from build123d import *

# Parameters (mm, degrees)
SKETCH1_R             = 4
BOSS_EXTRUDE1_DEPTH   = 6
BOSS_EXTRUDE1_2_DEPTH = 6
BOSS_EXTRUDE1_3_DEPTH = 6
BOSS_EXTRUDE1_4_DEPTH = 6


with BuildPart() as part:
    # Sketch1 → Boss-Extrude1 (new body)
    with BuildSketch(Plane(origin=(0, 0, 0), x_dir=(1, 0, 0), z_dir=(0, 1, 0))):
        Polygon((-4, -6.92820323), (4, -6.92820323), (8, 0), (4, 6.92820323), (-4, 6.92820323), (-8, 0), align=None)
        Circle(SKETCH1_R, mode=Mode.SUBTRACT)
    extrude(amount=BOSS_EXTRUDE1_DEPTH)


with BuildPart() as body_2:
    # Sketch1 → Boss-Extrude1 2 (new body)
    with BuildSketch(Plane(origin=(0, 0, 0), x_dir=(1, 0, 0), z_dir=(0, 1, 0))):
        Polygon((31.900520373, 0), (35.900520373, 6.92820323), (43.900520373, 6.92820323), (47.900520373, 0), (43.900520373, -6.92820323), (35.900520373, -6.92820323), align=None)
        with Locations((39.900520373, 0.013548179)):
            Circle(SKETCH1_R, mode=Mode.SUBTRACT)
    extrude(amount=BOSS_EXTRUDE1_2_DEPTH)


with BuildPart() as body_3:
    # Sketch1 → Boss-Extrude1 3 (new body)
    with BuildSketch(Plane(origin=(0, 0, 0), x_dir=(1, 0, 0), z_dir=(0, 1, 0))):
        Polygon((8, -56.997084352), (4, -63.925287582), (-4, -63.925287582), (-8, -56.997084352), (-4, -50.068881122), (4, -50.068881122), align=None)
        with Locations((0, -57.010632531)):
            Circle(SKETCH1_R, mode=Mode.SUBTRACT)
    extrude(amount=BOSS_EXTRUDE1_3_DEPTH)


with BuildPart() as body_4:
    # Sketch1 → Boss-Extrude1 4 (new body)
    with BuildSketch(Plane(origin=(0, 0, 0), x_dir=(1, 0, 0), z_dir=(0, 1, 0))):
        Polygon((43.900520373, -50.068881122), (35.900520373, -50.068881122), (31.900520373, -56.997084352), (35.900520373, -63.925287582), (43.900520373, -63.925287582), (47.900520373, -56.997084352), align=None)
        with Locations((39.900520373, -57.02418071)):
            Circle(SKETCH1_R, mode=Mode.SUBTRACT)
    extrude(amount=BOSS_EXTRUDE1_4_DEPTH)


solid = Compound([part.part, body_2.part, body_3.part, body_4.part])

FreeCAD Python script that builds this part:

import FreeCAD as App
import Part
import Sketcher
from FreeCAD import Vector
Q = App.Units.Quantity

doc = App.newDocument("Part")
params = doc.addObject("Spreadsheet::Sheet", "Params")
for row, (alias, value) in enumerate([
    ("sketch1_diameter", "8 mm"),
    ("sketch1_width", "8 mm"),
    ("sketch1_length", "8 mm"),
    ("pad1_length", "6 mm"),
    ("sketch2_diameter", "8 mm"),
    ("sketch2_width", "8 mm"),
    ("sketch2_length", "8 mm"),
    ("pad2_length", "6 mm"),
    ("sketch3_diameter", "8 mm"),
    ("sketch3_width", "8 mm"),
    ("sketch3_length", "8 mm"),
    ("pad3_length", "6 mm"),
    ("sketch4_diameter", "8 mm"),
    ("sketch4_width", "8 mm"),
    ("sketch4_length", "8 mm"),
    ("pad4_length", "6 mm"),
], start=1):
    params.set(f"A{row}", alias)
    params.set(f"B{row}", "=" + value)
    params.setAlias(f"B{row}", alias)

body = doc.addObject("PartDesign::Body", "Body")

# Sketch on XZ plane
sketch1 = body.newObject("Sketcher::SketchObject", "Sketch")
sketch1.AttachmentSupport = (doc.getObject("XZ_Plane"), [""])
sketch1.MapMode = "FlatFace"
sketch1.addGeometry([
    Part.LineSegment(Vector(-4, 6.9, 0), Vector(4, 6.9, 0)),  # 0
    Part.LineSegment(Vector(4, 6.9, 0), Vector(8, 0, 0)),  # 1
    Part.LineSegment(Vector(8, 0, 0), Vector(4, -6.9, 0)),  # 2
    Part.LineSegment(Vector(4, -6.9, 0), Vector(-4, -6.9, 0)),  # 3
    Part.LineSegment(Vector(-4, -6.9, 0), Vector(-8, 0, 0)),  # 4
    Part.LineSegment(Vector(-8, 0, 0), Vector(-4, 6.9, 0)),  # 5
    Part.Circle(Vector(0, 0, 0), Vector(0, 0, 1), 4),  # 6
], False)
sketch1.addConstraint([
    Sketcher.Constraint("Coincident", 0, 2, 1, 1),
    Sketcher.Constraint("Coincident", 1, 2, 2, 1),
    Sketcher.Constraint("Coincident", 2, 2, 3, 1),
    Sketcher.Constraint("Coincident", 3, 2, 4, 1),
    Sketcher.Constraint("Coincident", 4, 2, 5, 1),
    Sketcher.Constraint("Coincident", 5, 2, 0, 1),
    Sketcher.Constraint("Horizontal", 0),
    Sketcher.Constraint("Horizontal", 3),
    Sketcher.Constraint("Coincident", 6, 3, -1, 1),
    Sketcher.Constraint("Symmetric", 0, 2, 3, 2, -1, 1),
    Sketcher.Constraint("Symmetric", 1, 2, 4, 2, -1, 1),
    Sketcher.Constraint("PointOnObject", 1, 2, -1),
    Sketcher.Constraint("Parallel", 2, 5),
    Sketcher.Constraint("Vertical", 0, 2, 2, 2),
    Sketcher.Constraint("Diameter", 6, 8.0),
    Sketcher.Constraint("DistanceX", 0, 1, 0, 2, 8.0),
    Sketcher.Constraint("Angle", 1, Q("-60 deg")),
    Sketcher.Constraint("Distance", 1, 8.0),
])
sketch1.setExpression("Constraints[14]", "Params.sketch1_diameter")
sketch1.setExpression("Constraints[15]", "Params.sketch1_width")
sketch1.setExpression("Constraints[17]", "Params.sketch1_length")
pad1 = body.newObject("PartDesign::Pad", "Pad")
pad1.Profile = sketch1
pad1.setExpression("Length", "Params.pad1_length")
pad1.Reversed = True
body2 = doc.addObject("PartDesign::Body", "Body001")

# Sketch on XZ plane
sketch2 = body2.newObject("Sketcher::SketchObject", "Sketch001")
sketch2.AttachmentSupport = (doc.getObject("XZ_Plane001"), [""])
sketch2.MapMode = "FlatFace"
sketch2.addGeometry([
    Part.LineSegment(Vector(35.9, -6.9, 0), Vector(31.9, 0, 0)),  # 0
    Part.LineSegment(Vector(31.9, 0, 0), Vector(35.9, 6.9, 0)),  # 1
    Part.LineSegment(Vector(35.9, 6.9, 0), Vector(43.9, 6.9, 0)),  # 2
    Part.LineSegment(Vector(43.9, 6.9, 0), Vector(47.9, 0, 0)),  # 3
    Part.LineSegment(Vector(47.9, 0, 0), Vector(43.9, -6.9, 0)),  # 4
    Part.LineSegment(Vector(43.9, -6.9, 0), Vector(35.9, -6.9, 0)),  # 5
    Part.Circle(Vector(39.9, 0, 0), Vector(0, 0, 1), 4),  # 6
], False)
sketch2.addConstraint([
    Sketcher.Constraint("Coincident", 0, 2, 1, 1),
    Sketcher.Constraint("Coincident", 1, 2, 2, 1),
    Sketcher.Constraint("Coincident", 2, 2, 3, 1),
    Sketcher.Constraint("Coincident", 3, 2, 4, 1),
    Sketcher.Constraint("Coincident", 4, 2, 5, 1),
    Sketcher.Constraint("Coincident", 5, 2, 0, 1),
    Sketcher.Constraint("Horizontal", 2),
    Sketcher.Constraint("Horizontal", 5),
    Sketcher.Constraint("Symmetric", 2, 2, 4, 2, -1),
    Sketcher.Constraint("PointOnObject", 0, 2, -1),
    Sketcher.Constraint("PointOnObject", 3, 2, -1),
    Sketcher.Constraint("Parallel", 0, 3),
    Sketcher.Constraint("Parallel", 1, 4),
    Sketcher.Constraint("Diameter", 6, 8.0),
    Sketcher.Constraint("DistanceX", 2, 1, 2, 2, 8.0),
    Sketcher.Constraint("Angle", 0, Q("120 deg")),
    Sketcher.Constraint("Distance", 0, 8.0),
    Sketcher.Constraint("DistanceX", 0, 2, 6, 3, 8.0),
    Sketcher.Constraint("DistanceX", -1, 1, 6, 3, 39.90052),
    Sketcher.Constraint("DistanceY", 6, 3, -1, 1, 0.013548),
])
sketch2.setExpression("Constraints[13]", "Params.sketch2_diameter")
sketch2.setExpression("Constraints[14]", "Params.sketch2_width")
sketch2.setExpression("Constraints[16]", "Params.sketch2_length")
pad2 = body2.newObject("PartDesign::Pad", "Pad001")
pad2.Profile = sketch2
pad2.setExpression("Length", "Params.pad2_length")
pad2.Reversed = True
body3 = doc.addObject("PartDesign::Body", "Body002")

# Sketch on XZ plane
sketch3 = body3.newObject("Sketcher::SketchObject", "Sketch002")
sketch3.AttachmentSupport = (doc.getObject("XZ_Plane002"), [""])
sketch3.MapMode = "FlatFace"
sketch3.addGeometry([
    Part.LineSegment(Vector(4, 63.9, 0), Vector(8, 57, 0)),  # 0
    Part.LineSegment(Vector(8, 57, 0), Vector(4, 50.1, 0)),  # 1
    Part.LineSegment(Vector(4, 50.1, 0), Vector(-4, 50.1, 0)),  # 2
    Part.LineSegment(Vector(-4, 50.1, 0), Vector(-8, 57, 0)),  # 3
    Part.LineSegment(Vector(-8, 57, 0), Vector(-4, 63.9, 0)),  # 4
    Part.LineSegment(Vector(-4, 63.9, 0), Vector(4, 63.9, 0)),  # 5
    Part.Circle(Vector(0, 57, 0), Vector(0, 0, 1), 4),  # 6
], False)
sketch3.addConstraint([
    Sketcher.Constraint("Coincident", 0, 2, 1, 1),
    Sketcher.Constraint("Coincident", 1, 2, 2, 1),
    Sketcher.Constraint("Coincident", 2, 2, 3, 1),
    Sketcher.Constraint("Coincident", 3, 2, 4, 1),
    Sketcher.Constraint("Coincident", 4, 2, 5, 1),
    Sketcher.Constraint("Coincident", 5, 2, 0, 1),
    Sketcher.Constraint("Horizontal", 2),
    Sketcher.Constraint("Horizontal", 5),
    Sketcher.Constraint("Symmetric", 0, 2, 3, 2, -2),
    Sketcher.Constraint("PointOnObject", 6, 3, -2),
    Sketcher.Constraint("Parallel", 0, 3),
    Sketcher.Constraint("Parallel", 1, 4),
    Sketcher.Constraint("Vertical", 2, 2, 4, 2),
    Sketcher.Constraint("Vertical", 1, 2, 5, 2),
    Sketcher.Constraint("Diameter", 6, 8.0),
    Sketcher.Constraint("DistanceX", 2, 2, 2, 1, 8.0),
    Sketcher.Constraint("Angle", 0, Q("-60 deg")),
    Sketcher.Constraint("Distance", 0, 8.0),
    Sketcher.Constraint("DistanceY", -1, 1, 1, 2, 50.068881),
    Sketcher.Constraint("DistanceY", 0, 2, 6, 3, 0.013548),
])
sketch3.setExpression("Constraints[14]", "Params.sketch3_diameter")
sketch3.setExpression("Constraints[15]", "Params.sketch3_width")
sketch3.setExpression("Constraints[17]", "Params.sketch3_length")
pad3 = body3.newObject("PartDesign::Pad", "Pad002")
pad3.Profile = sketch3
pad3.setExpression("Length", "Params.pad3_length")
pad3.Reversed = True
body4 = doc.addObject("PartDesign::Body", "Body003")

# Sketch on XZ plane
sketch4 = body4.newObject("Sketcher::SketchObject", "Sketch003")
sketch4.AttachmentSupport = (doc.getObject("XZ_Plane003"), [""])
sketch4.MapMode = "FlatFace"
sketch4.addGeometry([
    Part.LineSegment(Vector(43.9, 50.1, 0), Vector(35.9, 50.1, 0)),  # 0
    Part.LineSegment(Vector(35.9, 50.1, 0), Vector(31.9, 57, 0)),  # 1
    Part.LineSegment(Vector(31.9, 57, 0), Vector(35.9, 63.9, 0)),  # 2
    Part.LineSegment(Vector(35.9, 63.9, 0), Vector(43.9, 63.9, 0)),  # 3
    Part.LineSegment(Vector(43.9, 63.9, 0), Vector(47.9, 57, 0)),  # 4
    Part.LineSegment(Vector(47.9, 57, 0), Vector(43.9, 50.1, 0)),  # 5
    Part.Circle(Vector(39.9, 57, 0), Vector(0, 0, 1), 4),  # 6
], False)
sketch4.addConstraint([
    Sketcher.Constraint("Coincident", 0, 2, 1, 1),
    Sketcher.Constraint("Coincident", 1, 2, 2, 1),
    Sketcher.Constraint("Coincident", 2, 2, 3, 1),
    Sketcher.Constraint("Coincident", 3, 2, 4, 1),
    Sketcher.Constraint("Coincident", 4, 2, 5, 1),
    Sketcher.Constraint("Coincident", 5, 2, 0, 1),
    Sketcher.Constraint("Horizontal", 0),
    Sketcher.Constraint("Horizontal", 3),
    Sketcher.Constraint("Parallel", 1, 4),
    Sketcher.Constraint("Parallel", 2, 5),
    Sketcher.Constraint("Horizontal", 1, 2, 4, 2),
    Sketcher.Constraint("Vertical", 0, 2, 2, 2),
    Sketcher.Constraint("Vertical", 3, 2, 5, 2),
    Sketcher.Constraint("Diameter", 6, 8.0),
    Sketcher.Constraint("DistanceX", 0, 2, 0, 1, 8.0),
    Sketcher.Constraint("Angle", 1, Q("120 deg")),
    Sketcher.Constraint("Distance", 1, 8.0),
    Sketcher.Constraint("DistanceX", 0, 2, 6, 3, 4.0),
    Sketcher.Constraint("DistanceY", 0, 2, 6, 3, 6.9553),
    Sketcher.Constraint("DistanceX", -1, 1, 6, 3, 39.90052),
    Sketcher.Constraint("DistanceY", -1, 1, 6, 3, 57.024181),
])
sketch4.setExpression("Constraints[13]", "Params.sketch4_diameter")
sketch4.setExpression("Constraints[14]", "Params.sketch4_width")
sketch4.setExpression("Constraints[16]", "Params.sketch4_length")
pad4 = body4.newObject("PartDesign::Pad", "Pad003")
pad4.Profile = sketch4
pad4.setExpression("Length", "Params.pad4_length")
pad4.Reversed = True

doc.recompute()
